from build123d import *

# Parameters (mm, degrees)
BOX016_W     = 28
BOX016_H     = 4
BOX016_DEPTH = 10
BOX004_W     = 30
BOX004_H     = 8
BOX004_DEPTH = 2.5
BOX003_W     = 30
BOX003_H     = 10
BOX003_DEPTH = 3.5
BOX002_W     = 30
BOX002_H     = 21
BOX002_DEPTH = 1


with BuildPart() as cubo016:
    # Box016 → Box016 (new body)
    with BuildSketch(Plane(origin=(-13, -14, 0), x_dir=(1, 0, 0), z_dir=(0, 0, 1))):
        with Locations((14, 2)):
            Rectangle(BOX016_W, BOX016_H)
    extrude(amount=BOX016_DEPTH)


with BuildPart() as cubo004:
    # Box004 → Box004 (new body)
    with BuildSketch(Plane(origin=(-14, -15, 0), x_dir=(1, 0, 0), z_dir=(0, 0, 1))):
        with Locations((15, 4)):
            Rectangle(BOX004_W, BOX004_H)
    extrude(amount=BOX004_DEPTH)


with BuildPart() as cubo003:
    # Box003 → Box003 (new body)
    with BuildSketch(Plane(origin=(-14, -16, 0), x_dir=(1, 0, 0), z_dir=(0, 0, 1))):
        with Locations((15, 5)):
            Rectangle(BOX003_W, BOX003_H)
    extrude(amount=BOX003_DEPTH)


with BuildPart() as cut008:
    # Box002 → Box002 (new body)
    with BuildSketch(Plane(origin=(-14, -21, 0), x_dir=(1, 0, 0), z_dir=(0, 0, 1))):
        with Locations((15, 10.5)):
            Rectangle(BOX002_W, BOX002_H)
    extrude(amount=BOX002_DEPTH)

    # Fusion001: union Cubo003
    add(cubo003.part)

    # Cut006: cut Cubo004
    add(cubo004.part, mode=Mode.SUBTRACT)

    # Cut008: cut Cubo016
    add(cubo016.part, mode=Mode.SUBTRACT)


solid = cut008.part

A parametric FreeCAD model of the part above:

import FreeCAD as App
import Part
import Sketcher
from FreeCAD import Vector


def add_polygon(sketch, points):
    """Adds a closed chain of lines whose ends are joined by coincident constraints."""
    first, n = sketch.GeometryCount, len(points)
    for a, b in zip(points, points[1:] + points[:1]):
        sketch.addGeometry(Part.LineSegment(App.Vector(*a, 0), App.Vector(*b, 0)), False)
    for i in range(n):
        sketch.addConstraint(Sketcher.Constraint("Coincident", first + i, 2, first + (i + 1) % n, 1))

doc = App.newDocument("Part")
params = doc.addObject("Spreadsheet::Sheet", "Params")
for row, (alias, value) in enumerate([
    ("sketch1_width", "28 mm"),
    ("sketch1_height", "4 mm"),
    ("pad1_length", "10 mm"),
    ("sketch2_width", "30 mm"),
    ("sketch2_height", "8 mm"),
    ("pad2_length", "2.5 mm"),
    ("sketch3_width", "30 mm"),
    ("sketch3_height", "10 mm"),
    ("pad3_length", "3.5 mm"),
    ("sketch4_width", "30 mm"),
    ("sketch4_height", "21 mm"),
    ("pad4_length", "1 mm"),
], start=1):
    params.set(f"A{row}", alias)
    params.set(f"B{row}", "=" + value)
    params.setAlias(f"B{row}", alias)

body = doc.addObject("PartDesign::Body", "Body")

# Sketch on XY plane
sketch1 = body.newObject("Sketcher::SketchObject", "Sketch")
sketch1.AttachmentSupport = (doc.getObject("XY_Plane"), [""])
sketch1.MapMode = "FlatFace"
add_polygon(sketch1, [(-13, -10), (-13, -14), (15, -14), (15, -10)])  # lines 0-3
sketch1.addConstraint([
    Sketcher.Constraint("Vertical", 0),
    Sketcher.Constraint("Horizontal", 1),
    Sketcher.Constraint("Vertical", 2),
    Sketcher.Constraint("Horizontal", 3),
    Sketcher.Constraint("DistanceX", 1, 1, 1, 2, 28.0),
    Sketcher.Constraint("DistanceY", 0, 2, 0, 1, 4.0),
    Sketcher.Constraint("DistanceX", 0, 2, -1, 1, 13.0),
    Sketcher.Constraint("DistanceY", 0, 2, -1, 1, 14.0),
])
sketch1.setExpression("Constraints[8]", "Params.sketch1_width")
sketch1.setExpression("Constraints[9]", "Params.sketch1_height")
pad1 = body.newObject("PartDesign::Pad", "Pad")
pad1.Profile = sketch1
pad1.setExpression("Length", "Params.pad1_length")
body2 = doc.addObject("PartDesign::Body", "Body001")

# Sketch on XY plane
sketch2 = body2.newObject("Sketcher::SketchObject", "Sketch001")
sketch2.AttachmentSupport = (doc.getObject("XY_Plane001"), [""])
sketch2.MapMode = "FlatFace"
add_polygon(sketch2, [(-14, -7), (-14, -15), (16, -15), (16, -7)])  # lines 0-3
sketch2.addConstraint([
    Sketcher.Constraint("Vertical", 0),
    Sketcher.Constraint("Horizontal", 1),
    Sketcher.Constraint("Vertical", 2),
    Sketcher.Constraint("Horizontal", 3),
    Sketcher.Constraint("DistanceX", 1, 1, 1, 2, 30.0),
    Sketcher.Constraint("DistanceY", 0, 2, 0, 1, 8.0),
    Sketcher.Constraint("DistanceX", 0, 2, -1, 1, 14.0),
    Sketcher.Constraint("DistanceY", 0, 2, -1, 1, 15.0),
])
sketch2.setExpression("Constraints[8]", "Params.sketch2_width")
sketch2.setExpression("Constraints[9]", "Params.sketch2_height")
pad2 = body2.newObject("PartDesign::Pad", "Pad001")
pad2.Profile = sketch2
pad2.setExpression("Length", "Params.pad2_length")
body3 = doc.addObject("PartDesign::Body", "Body002")

# Sketch on XY plane
sketch3 = body3.newObject("Sketcher::SketchObject", "Sketch002")
sketch3.AttachmentSupport = (doc.getObject("XY_Plane002"), [""])
sketch3.MapMode = "FlatFace"
add_polygon(sketch3, [(-14, -6), (-14, -16), (16, -16), (16, -6)])  # lines 0-3
sketch3.addConstraint([
    Sketcher.Constraint("Vertical", 0),
    Sketcher.Constraint("Horizontal", 1),
    Sketcher.Constraint("Vertical", 2),
    Sketcher.Constraint("Horizontal", 3),
    Sketcher.Constraint("DistanceX", 1, 1, 1, 2, 30.0),
    Sketcher.Constraint("DistanceY", 0, 2, 0, 1, 10.0),
    Sketcher.Constraint("DistanceX", 0, 2, -1, 1, 14.0),
    Sketcher.Constraint("DistanceY", 0, 2, -1, 1, 16.0),
])
sketch3.setExpression("Constraints[8]", "Params.sketch3_width")
sketch3.setExpression("Constraints[9]", "Params.sketch3_height")
pad3 = body3.newObject("PartDesign::Pad", "Pad002")
pad3.Profile = sketch3
pad3.setExpression("Length", "Params.pad3_length")
body4 = doc.addObject("PartDesign::Body", "Body003")

# Sketch on XY plane
sketch4 = body4.newObject("Sketcher::SketchObject", "Sketch003")
sketch4.AttachmentSupport = (doc.getObject("XY_Plane003"), [""])
sketch4.MapMode = "FlatFace"
add_polygon(sketch4, [(-14, 0), (-14, -21), (16, -21), (16, 0)])  # lines 0-3
sketch4.addConstraint([
    Sketcher.Constraint("Vertical", 0),
    Sketcher.Constraint("Horizontal", 1),
    Sketcher.Constraint("Vertical", 2),
    Sketcher.Constraint("Horizontal", 3),
    Sketcher.Constraint("PointOnObject", 2, 2, -1),
    Sketcher.Constraint("DistanceX", 1, 1, 1, 2, 30.0),
    Sketcher.Constraint("DistanceY", 0, 2, 0, 1, 21.0),
    Sketcher.Constraint("DistanceX", 0, 2, -1, 1, 14.0),
])
sketch4.setExpression("Constraints[9]", "Params.sketch4_width")
sketch4.setExpression("Constraints[10]", "Params.sketch4_height")
pad4 = body4.newObject("PartDesign::Pad", "Pad003")
pad4.Profile = sketch4
pad4.setExpression("Length", "Params.pad4_length")
doc.recompute()

boolean = body4.newObject("PartDesign::Boolean", "Boolean")
boolean.Type = "Fuse"
boolean.addObjects([body3])
doc.recompute()

boolean2 = body4.newObject("PartDesign::Boolean", "Boolean001")
boolean2.Type = "Cut"
boolean2.addObjects([body2])
doc.recompute()

boolean3 = body4.newObject("PartDesign::Boolean", "Boolean002")
boolean3.Type = "Cut"
boolean3.addObjects([body])

doc.recompute()
